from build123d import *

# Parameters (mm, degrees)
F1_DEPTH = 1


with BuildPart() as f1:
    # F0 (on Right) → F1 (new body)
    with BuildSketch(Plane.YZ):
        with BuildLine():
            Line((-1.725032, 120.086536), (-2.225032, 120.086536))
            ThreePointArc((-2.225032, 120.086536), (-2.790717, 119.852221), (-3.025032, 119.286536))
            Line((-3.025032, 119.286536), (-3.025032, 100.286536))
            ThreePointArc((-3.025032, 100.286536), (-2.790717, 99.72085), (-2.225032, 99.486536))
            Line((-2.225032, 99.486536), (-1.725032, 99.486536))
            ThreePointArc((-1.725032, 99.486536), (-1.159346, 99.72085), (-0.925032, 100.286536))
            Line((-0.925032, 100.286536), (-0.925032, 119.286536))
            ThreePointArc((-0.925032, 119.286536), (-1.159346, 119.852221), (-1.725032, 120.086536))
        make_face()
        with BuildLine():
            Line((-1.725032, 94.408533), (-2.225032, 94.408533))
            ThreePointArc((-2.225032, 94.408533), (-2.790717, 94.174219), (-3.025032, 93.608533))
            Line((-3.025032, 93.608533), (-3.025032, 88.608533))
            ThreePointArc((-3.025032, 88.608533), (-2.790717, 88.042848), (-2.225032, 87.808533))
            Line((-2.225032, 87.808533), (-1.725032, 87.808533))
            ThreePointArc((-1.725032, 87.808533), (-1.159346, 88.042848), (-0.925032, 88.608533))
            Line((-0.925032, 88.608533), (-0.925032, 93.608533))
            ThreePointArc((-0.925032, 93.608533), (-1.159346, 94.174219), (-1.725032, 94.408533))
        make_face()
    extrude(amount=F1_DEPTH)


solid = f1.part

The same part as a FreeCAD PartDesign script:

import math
import FreeCAD as App
import Part
import Sketcher

V = App.Vector

doc = App.newDocument("Part")
params = doc.addObject("Spreadsheet::Sheet", "Params")
for row, (alias, value) in enumerate([
    ("sketch1_radius", "0.800001 mm"),
    ("sketch1_height", "19 mm"),
    ("sketch1_height2", "5 mm"),
    ("sketch1_width", "0.5 mm"),
    ("pad1_length", "1 mm"),
], start=1):
    params.set(f"A{row}", alias)
    params.set(f"B{row}", "=" + value)
    params.setAlias(f"B{row}", alias)

body = doc.addObject("PartDesign::Body", "Body")
body.AllowCompound = True

sketch1 = body.newObject("Sketcher::SketchObject", "Sketch")
sketch1.AttachmentSupport = (doc.getObject("YZ_Plane"), [""])
sketch1.MapMode = "FlatFace"
sketch1.addGeometry(Part.LineSegment(V(-1.725032, 120.086536, 0), V(-2.225032, 120.086536, 0)), False)
sketch1.addGeometry(Part.ArcOfCircle(Part.Circle(V(-2.225031, 119.286535, 0), V(0, 0, 1), 0.800001), math.radians(90.000104), math.radians(179.999896)), False)
sketch1.addGeometry(Part.LineSegment(V(-3.025032, 119.286536, 0), V(-3.025032, 100.286536, 0)), False)
sketch1.addGeometry(Part.ArcOfCircle(Part.Circle(V(-2.225032, 100.286536, 0), V(0, 0, 1), 0.8), math.radians(179.999982), math.radians(270.000018)), False)
sketch1.addGeometry(Part.LineSegment(V(-2.225032, 99.486536, 0), V(-1.725032, 99.486536, 0)), False)
sketch1.addGeometry(Part.ArcOfCircle(Part.Circle(V(-1.72503, 100.286534, 0), V(0, 0, 1), 0.799998), math.radians(-90.000141), math.radians(0.000141)), False)
sketch1.addGeometry(Part.LineSegment(V(-0.925032, 100.286536, 0), V(-0.925032, 119.286536, 0)), False)
sketch1.addGeometry(Part.ArcOfCircle(Part.Circle(V(-1.725032, 119.286536, 0), V(0, 0, 1), 0.8), math.radians(-0.000018), math.radians(90.000018)), False)
sketch1.addGeometry(Part.LineSegment(V(-1.725032, 94.408533, 0), V(-2.225032, 94.408533, 0)), False)
sketch1.addGeometry(Part.ArcOfCircle(Part.Circle(V(-2.225032, 93.608533, 0), V(0, 0, 1), 0.8), math.radians(89.999982), math.radians(180.000018)), False)
sketch1.addGeometry(Part.LineSegment(V(-3.025032, 93.608533, 0), V(-3.025032, 88.608533, 0)), False)
sketch1.addGeometry(Part.ArcOfCircle(Part.Circle(V(-2.225031, 88.608534, 0), V(0, 0, 1), 0.800001), math.radians(-179.999896), math.radians(-90.000104)), False)
sketch1.addGeometry(Part.LineSegment(V(-2.225032, 87.808533, 0), V(-1.725032, 87.808533, 0)), False)
sketch1.addGeometry(Part.ArcOfCircle(Part.Circle(V(-1.725032, 88.608533, 0), V(0, 0, 1), 0.8), math.radians(-90.000018), math.radians(0.000018)), False)
sketch1.addGeometry(Part.LineSegment(V(-0.925032, 88.608533, 0), V(-0.925032, 93.608533, 0)), False)
sketch1.addGeometry(Part.ArcOfCircle(Part.Circle(V(-1.72503, 93.608535, 0), V(0, 0, 1), 0.799998), math.radians(-0.000141), math.radians(90.000141)), False)
sketch1.addConstraint(Sketcher.Constraint("Tangent", 0, 2, 1, 1))
sketch1.addConstraint(Sketcher.Constraint("Tangent", 1, 2, 2, 1))
sketch1.addConstraint(Sketcher.Constraint("Tangent", 2, 2, 3, 1))
sketch1.addConstraint(Sketcher.Constraint("Tangent", 3, 2, 4, 1))
sketch1.addConstraint(Sketcher.Constraint("Coincident", 4, 2, 5, 1))
sketch1.addConstraint(Sketcher.Constraint("Coincident", 5, 2, 6, 1))
sketch1.addConstraint(Sketcher.Constraint("Tangent", 6, 2, 7, 1))
sketch1.addConstraint(Sketcher.Constraint("Tangent", 7, 2, 0, 1))
sketch1.addConstraint(Sketcher.Constraint("Tangent", 8, 2, 9, 1))
sketch1.addConstraint(Sketcher.Constraint("Tangent", 9, 2, 10, 1))
sketch1.addConstraint(Sketcher.Constraint("Tangent", 10, 2, 11, 1))
sketch1.addConstraint(Sketcher.Constraint("Tangent", 11, 2, 12, 1))
sketch1.addConstraint(Sketcher.Constraint("Tangent", 12, 2, 13, 1))
sketch1.addConstraint(Sketcher.Constraint("Tangent", 13, 2, 14, 1))
sketch1.addConstraint(Sketcher.Constraint("Coincident", 14, 2, 15, 1))
sketch1.addConstraint(Sketcher.Constraint("Coincident", 15, 2, 8, 1))
sketch1.addConstraint(Sketcher.Constraint("Horizontal", 0))
sketch1.addConstraint(Sketcher.Constraint("Vertical", 2))
sketch1.addConstraint(Sketcher.Constraint("Horizontal", 4))
sketch1.addConstraint(Sketcher.Constraint("Vertical", 6))
sketch1.addConstraint(Sketcher.Constraint("Horizontal", 8))
sketch1.addConstraint(Sketcher.Constraint("Vertical", 10))
sketch1.addConstraint(Sketcher.Constraint("Horizontal", 12))
sketch1.addConstraint(Sketcher.Constraint("Vertical", 14))
sketch1.addConstraint(Sketcher.Constraint("Equal", 1, 3))
sketch1.addConstraint(Sketcher.Constraint("Equal", 3, 5))
sketch1.addConstraint(Sketcher.Constraint("Equal", 5, 7))
sketch1.addConstraint(Sketcher.Constraint("Equal", 7, 9))
sketch1.addConstraint(Sketcher.Constraint("Equal", 9, 11))
sketch1.addConstraint(Sketcher.Constraint("Equal", 11, 13))
sketch1.addConstraint(Sketcher.Constraint("Equal", 13, 15))
sketch1.addConstraint(Sketcher.Constraint("Horizontal", 2, 2, 5, 2))
sketch1.addConstraint(Sketcher.Constraint("Horizontal", 9, 2, 14, 2))
sketch1.addConstraint(Sketcher.Constraint("Vertical", 3, 3, 9, 3))
sketch1.addConstraint(Sketcher.Constraint("Vertical", 7, 3, 13, 3))
sketch1.addConstraint(Sketcher.Constraint("Vertical", 15, 3, 4, 2))
sketch1.addConstraint(Sketcher.Constraint("Vertical", 12, 2, 15, 2))
sketch1.addConstraint(Sketcher.Constraint("Radius", 1, 0.800001))
sketch1.addConstraint(Sketcher.Constraint("DistanceY", 2, 2, 2, 1, 19.0))
sketch1.addConstraint(Sketcher.Constraint("DistanceY", 10, 2, 10, 1, 5.0))
sketch1.addConstraint(Sketcher.Constraint("DistanceX", 0, 2, 0, 1, 0.5))
sketch1.addConstraint(Sketcher.Constraint("DistanceY", 9, 3, 5, 3, 6.678001))
sketch1.addConstraint(Sketcher.Constraint("DistanceX", 1, 3, -1, 1, 2.225031))
sketch1.addConstraint(Sketcher.Constraint("DistanceY", -1, 1, 1, 3, 119.286535))
sketch1.setExpression("Constraints[37]", "Params.sketch1_radius")
sketch1.setExpression("Constraints[38]", "Params.sketch1_height")
sketch1.setExpression("Constraints[39]", "Params.sketch1_height2")
sketch1.setExpression("Constraints[40]", "Params.sketch1_width")
pad1 = body.newObject("PartDesign::Pad", "Pad")
pad1.Profile = sketch1
pad1.setExpression("Length", "Params.pad1_length")

doc.recompute()
